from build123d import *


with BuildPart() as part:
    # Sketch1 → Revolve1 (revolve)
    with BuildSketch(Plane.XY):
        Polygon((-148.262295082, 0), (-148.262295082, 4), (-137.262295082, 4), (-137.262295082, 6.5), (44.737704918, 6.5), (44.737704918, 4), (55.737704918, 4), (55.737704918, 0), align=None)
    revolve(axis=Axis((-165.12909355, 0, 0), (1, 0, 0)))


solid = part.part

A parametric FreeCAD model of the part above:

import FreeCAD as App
import Part
import Sketcher
Q = App.Units.Quantity

doc = App.newDocument("Part")
params = doc.addObject("Spreadsheet::Sheet", "Params")
for row, (alias, value) in enumerate([
    ("sketch1_width", "204 mm"),
    ("sketch1_width2", "11 mm"),
    ("sketch1_height", "4 mm"),
    ("sketch1_height2", "2.5 mm"),
    ("revolution_angle", "360 deg"),
], start=1):
    params.set(f"A{row}", alias)
    params.set(f"B{row}", "=" + value)
    params.setAlias(f"B{row}", alias)

body = doc.addObject("PartDesign::Body", "Body")

# Sketch on XY plane
sketch1 = body.newObject("Sketcher::SketchObject", "Sketch")
sketch1.AttachmentSupport = (doc.getObject("XY_Plane"), [""])
sketch1.MapMode = "FlatFace"
sketch1.addGeometry(Part.LineSegment(App.Vector(-148.3, 4, 0), App.Vector(-148.3, 0, 0)), False)
sketch1.addGeometry(Part.LineSegment(App.Vector(-148.3, 0, 0), App.Vector(55.7, 0, 0)), False)
sketch1.addGeometry(Part.LineSegment(App.Vector(55.7, 0, 0), App.Vector(55.7, 4, 0)), False)
sketch1.addGeometry(Part.LineSegment(App.Vector(55.7, 4, 0), App.Vector(44.7, 4, 0)), False)
sketch1.addGeometry(Part.LineSegment(App.Vector(44.7, 4, 0), App.Vector(44.7, 6.5, 0)), False)
sketch1.addGeometry(Part.LineSegment(App.Vector(44.7, 6.5, 0), App.Vector(-137.3, 6.5, 0)), False)
sketch1.addGeometry(Part.LineSegment(App.Vector(-137.3, 6.5, 0), App.Vector(-137.3, 4, 0)), False)
sketch1.addGeometry(Part.LineSegment(App.Vector(-137.3, 4, 0), App.Vector(-148.3, 4, 0)), False)
sketch1.addConstraint(Sketcher.Constraint("Coincident", 0, 2, 1, 1))
sketch1.addConstraint(Sketcher.Constraint("Coincident", 1, 2, 2, 1))
sketch1.addConstraint(Sketcher.Constraint("Coincident", 2, 2, 3, 1))
sketch1.addConstraint(Sketcher.Constraint("Coincident", 3, 2, 4, 1))
sketch1.addConstraint(Sketcher.Constraint("Coincident", 4, 2, 5, 1))
sketch1.addConstraint(Sketcher.Constraint("Coincident", 5, 2, 6, 1))
sketch1.addConstraint(Sketcher.Constraint("Coincident", 6, 2, 7, 1))
sketch1.addConstraint(Sketcher.Constraint("Coincident", 7, 2, 0, 1))
sketch1.addConstraint(Sketcher.Constraint("Vertical", 0))
sketch1.addConstraint(Sketcher.Constraint("Horizontal", 1))
sketch1.addConstraint(Sketcher.Constraint("Vertical", 2))
sketch1.addConstraint(Sketcher.Constraint("Horizontal", 3))
sketch1.addConstraint(Sketcher.Constraint("Vertical", 4))
sketch1.addConstraint(Sketcher.Constraint("Horizontal", 5))
sketch1.addConstraint(Sketcher.Constraint("Vertical", 6))
sketch1.addConstraint(Sketcher.Constraint("Horizontal", 7))
sketch1.addConstraint(Sketcher.Constraint("PointOnObject", 0, 2, -1))
sketch1.addConstraint(Sketcher.Constraint("Horizontal", 3, 2, 6, 2))
sketch1.addConstraint(Sketcher.Constraint("Equal", 3, 7))
sketch1.addConstraint(Sketcher.Constraint("DistanceX", 1, 1, 1, 2, Q("204 mm")))
sketch1.addConstraint(Sketcher.Constraint("DistanceX", 3, 2, 3, 1, Q("11 mm")))
sketch1.addConstraint(Sketcher.Constraint("DistanceY", 0, 2, 0, 1, Q("4 mm")))
sketch1.addConstraint(Sketcher.Constraint("DistanceY", 4, 1, 4, 2, Q("2.5 mm")))
sketch1.addConstraint(Sketcher.Constraint("DistanceX", 0, 2, -1, 1, Q("148.262295 mm")))
sketch1.setExpression("Constraints[19]", "Params.sketch1_width")
sketch1.setExpression("Constraints[20]", "Params.sketch1_width2")
sketch1.setExpression("Constraints[21]", "Params.sketch1_height")
sketch1.setExpression("Constraints[22]", "Params.sketch1_height2")
revolution = body.newObject("PartDesign::Revolution", "Revolution")
revolution.Profile = sketch1
revolution.ReferenceAxis = (sketch1, ["H_Axis"])
revolution.setExpression("Angle", "Params.revolution_angle")

doc.recompute()
